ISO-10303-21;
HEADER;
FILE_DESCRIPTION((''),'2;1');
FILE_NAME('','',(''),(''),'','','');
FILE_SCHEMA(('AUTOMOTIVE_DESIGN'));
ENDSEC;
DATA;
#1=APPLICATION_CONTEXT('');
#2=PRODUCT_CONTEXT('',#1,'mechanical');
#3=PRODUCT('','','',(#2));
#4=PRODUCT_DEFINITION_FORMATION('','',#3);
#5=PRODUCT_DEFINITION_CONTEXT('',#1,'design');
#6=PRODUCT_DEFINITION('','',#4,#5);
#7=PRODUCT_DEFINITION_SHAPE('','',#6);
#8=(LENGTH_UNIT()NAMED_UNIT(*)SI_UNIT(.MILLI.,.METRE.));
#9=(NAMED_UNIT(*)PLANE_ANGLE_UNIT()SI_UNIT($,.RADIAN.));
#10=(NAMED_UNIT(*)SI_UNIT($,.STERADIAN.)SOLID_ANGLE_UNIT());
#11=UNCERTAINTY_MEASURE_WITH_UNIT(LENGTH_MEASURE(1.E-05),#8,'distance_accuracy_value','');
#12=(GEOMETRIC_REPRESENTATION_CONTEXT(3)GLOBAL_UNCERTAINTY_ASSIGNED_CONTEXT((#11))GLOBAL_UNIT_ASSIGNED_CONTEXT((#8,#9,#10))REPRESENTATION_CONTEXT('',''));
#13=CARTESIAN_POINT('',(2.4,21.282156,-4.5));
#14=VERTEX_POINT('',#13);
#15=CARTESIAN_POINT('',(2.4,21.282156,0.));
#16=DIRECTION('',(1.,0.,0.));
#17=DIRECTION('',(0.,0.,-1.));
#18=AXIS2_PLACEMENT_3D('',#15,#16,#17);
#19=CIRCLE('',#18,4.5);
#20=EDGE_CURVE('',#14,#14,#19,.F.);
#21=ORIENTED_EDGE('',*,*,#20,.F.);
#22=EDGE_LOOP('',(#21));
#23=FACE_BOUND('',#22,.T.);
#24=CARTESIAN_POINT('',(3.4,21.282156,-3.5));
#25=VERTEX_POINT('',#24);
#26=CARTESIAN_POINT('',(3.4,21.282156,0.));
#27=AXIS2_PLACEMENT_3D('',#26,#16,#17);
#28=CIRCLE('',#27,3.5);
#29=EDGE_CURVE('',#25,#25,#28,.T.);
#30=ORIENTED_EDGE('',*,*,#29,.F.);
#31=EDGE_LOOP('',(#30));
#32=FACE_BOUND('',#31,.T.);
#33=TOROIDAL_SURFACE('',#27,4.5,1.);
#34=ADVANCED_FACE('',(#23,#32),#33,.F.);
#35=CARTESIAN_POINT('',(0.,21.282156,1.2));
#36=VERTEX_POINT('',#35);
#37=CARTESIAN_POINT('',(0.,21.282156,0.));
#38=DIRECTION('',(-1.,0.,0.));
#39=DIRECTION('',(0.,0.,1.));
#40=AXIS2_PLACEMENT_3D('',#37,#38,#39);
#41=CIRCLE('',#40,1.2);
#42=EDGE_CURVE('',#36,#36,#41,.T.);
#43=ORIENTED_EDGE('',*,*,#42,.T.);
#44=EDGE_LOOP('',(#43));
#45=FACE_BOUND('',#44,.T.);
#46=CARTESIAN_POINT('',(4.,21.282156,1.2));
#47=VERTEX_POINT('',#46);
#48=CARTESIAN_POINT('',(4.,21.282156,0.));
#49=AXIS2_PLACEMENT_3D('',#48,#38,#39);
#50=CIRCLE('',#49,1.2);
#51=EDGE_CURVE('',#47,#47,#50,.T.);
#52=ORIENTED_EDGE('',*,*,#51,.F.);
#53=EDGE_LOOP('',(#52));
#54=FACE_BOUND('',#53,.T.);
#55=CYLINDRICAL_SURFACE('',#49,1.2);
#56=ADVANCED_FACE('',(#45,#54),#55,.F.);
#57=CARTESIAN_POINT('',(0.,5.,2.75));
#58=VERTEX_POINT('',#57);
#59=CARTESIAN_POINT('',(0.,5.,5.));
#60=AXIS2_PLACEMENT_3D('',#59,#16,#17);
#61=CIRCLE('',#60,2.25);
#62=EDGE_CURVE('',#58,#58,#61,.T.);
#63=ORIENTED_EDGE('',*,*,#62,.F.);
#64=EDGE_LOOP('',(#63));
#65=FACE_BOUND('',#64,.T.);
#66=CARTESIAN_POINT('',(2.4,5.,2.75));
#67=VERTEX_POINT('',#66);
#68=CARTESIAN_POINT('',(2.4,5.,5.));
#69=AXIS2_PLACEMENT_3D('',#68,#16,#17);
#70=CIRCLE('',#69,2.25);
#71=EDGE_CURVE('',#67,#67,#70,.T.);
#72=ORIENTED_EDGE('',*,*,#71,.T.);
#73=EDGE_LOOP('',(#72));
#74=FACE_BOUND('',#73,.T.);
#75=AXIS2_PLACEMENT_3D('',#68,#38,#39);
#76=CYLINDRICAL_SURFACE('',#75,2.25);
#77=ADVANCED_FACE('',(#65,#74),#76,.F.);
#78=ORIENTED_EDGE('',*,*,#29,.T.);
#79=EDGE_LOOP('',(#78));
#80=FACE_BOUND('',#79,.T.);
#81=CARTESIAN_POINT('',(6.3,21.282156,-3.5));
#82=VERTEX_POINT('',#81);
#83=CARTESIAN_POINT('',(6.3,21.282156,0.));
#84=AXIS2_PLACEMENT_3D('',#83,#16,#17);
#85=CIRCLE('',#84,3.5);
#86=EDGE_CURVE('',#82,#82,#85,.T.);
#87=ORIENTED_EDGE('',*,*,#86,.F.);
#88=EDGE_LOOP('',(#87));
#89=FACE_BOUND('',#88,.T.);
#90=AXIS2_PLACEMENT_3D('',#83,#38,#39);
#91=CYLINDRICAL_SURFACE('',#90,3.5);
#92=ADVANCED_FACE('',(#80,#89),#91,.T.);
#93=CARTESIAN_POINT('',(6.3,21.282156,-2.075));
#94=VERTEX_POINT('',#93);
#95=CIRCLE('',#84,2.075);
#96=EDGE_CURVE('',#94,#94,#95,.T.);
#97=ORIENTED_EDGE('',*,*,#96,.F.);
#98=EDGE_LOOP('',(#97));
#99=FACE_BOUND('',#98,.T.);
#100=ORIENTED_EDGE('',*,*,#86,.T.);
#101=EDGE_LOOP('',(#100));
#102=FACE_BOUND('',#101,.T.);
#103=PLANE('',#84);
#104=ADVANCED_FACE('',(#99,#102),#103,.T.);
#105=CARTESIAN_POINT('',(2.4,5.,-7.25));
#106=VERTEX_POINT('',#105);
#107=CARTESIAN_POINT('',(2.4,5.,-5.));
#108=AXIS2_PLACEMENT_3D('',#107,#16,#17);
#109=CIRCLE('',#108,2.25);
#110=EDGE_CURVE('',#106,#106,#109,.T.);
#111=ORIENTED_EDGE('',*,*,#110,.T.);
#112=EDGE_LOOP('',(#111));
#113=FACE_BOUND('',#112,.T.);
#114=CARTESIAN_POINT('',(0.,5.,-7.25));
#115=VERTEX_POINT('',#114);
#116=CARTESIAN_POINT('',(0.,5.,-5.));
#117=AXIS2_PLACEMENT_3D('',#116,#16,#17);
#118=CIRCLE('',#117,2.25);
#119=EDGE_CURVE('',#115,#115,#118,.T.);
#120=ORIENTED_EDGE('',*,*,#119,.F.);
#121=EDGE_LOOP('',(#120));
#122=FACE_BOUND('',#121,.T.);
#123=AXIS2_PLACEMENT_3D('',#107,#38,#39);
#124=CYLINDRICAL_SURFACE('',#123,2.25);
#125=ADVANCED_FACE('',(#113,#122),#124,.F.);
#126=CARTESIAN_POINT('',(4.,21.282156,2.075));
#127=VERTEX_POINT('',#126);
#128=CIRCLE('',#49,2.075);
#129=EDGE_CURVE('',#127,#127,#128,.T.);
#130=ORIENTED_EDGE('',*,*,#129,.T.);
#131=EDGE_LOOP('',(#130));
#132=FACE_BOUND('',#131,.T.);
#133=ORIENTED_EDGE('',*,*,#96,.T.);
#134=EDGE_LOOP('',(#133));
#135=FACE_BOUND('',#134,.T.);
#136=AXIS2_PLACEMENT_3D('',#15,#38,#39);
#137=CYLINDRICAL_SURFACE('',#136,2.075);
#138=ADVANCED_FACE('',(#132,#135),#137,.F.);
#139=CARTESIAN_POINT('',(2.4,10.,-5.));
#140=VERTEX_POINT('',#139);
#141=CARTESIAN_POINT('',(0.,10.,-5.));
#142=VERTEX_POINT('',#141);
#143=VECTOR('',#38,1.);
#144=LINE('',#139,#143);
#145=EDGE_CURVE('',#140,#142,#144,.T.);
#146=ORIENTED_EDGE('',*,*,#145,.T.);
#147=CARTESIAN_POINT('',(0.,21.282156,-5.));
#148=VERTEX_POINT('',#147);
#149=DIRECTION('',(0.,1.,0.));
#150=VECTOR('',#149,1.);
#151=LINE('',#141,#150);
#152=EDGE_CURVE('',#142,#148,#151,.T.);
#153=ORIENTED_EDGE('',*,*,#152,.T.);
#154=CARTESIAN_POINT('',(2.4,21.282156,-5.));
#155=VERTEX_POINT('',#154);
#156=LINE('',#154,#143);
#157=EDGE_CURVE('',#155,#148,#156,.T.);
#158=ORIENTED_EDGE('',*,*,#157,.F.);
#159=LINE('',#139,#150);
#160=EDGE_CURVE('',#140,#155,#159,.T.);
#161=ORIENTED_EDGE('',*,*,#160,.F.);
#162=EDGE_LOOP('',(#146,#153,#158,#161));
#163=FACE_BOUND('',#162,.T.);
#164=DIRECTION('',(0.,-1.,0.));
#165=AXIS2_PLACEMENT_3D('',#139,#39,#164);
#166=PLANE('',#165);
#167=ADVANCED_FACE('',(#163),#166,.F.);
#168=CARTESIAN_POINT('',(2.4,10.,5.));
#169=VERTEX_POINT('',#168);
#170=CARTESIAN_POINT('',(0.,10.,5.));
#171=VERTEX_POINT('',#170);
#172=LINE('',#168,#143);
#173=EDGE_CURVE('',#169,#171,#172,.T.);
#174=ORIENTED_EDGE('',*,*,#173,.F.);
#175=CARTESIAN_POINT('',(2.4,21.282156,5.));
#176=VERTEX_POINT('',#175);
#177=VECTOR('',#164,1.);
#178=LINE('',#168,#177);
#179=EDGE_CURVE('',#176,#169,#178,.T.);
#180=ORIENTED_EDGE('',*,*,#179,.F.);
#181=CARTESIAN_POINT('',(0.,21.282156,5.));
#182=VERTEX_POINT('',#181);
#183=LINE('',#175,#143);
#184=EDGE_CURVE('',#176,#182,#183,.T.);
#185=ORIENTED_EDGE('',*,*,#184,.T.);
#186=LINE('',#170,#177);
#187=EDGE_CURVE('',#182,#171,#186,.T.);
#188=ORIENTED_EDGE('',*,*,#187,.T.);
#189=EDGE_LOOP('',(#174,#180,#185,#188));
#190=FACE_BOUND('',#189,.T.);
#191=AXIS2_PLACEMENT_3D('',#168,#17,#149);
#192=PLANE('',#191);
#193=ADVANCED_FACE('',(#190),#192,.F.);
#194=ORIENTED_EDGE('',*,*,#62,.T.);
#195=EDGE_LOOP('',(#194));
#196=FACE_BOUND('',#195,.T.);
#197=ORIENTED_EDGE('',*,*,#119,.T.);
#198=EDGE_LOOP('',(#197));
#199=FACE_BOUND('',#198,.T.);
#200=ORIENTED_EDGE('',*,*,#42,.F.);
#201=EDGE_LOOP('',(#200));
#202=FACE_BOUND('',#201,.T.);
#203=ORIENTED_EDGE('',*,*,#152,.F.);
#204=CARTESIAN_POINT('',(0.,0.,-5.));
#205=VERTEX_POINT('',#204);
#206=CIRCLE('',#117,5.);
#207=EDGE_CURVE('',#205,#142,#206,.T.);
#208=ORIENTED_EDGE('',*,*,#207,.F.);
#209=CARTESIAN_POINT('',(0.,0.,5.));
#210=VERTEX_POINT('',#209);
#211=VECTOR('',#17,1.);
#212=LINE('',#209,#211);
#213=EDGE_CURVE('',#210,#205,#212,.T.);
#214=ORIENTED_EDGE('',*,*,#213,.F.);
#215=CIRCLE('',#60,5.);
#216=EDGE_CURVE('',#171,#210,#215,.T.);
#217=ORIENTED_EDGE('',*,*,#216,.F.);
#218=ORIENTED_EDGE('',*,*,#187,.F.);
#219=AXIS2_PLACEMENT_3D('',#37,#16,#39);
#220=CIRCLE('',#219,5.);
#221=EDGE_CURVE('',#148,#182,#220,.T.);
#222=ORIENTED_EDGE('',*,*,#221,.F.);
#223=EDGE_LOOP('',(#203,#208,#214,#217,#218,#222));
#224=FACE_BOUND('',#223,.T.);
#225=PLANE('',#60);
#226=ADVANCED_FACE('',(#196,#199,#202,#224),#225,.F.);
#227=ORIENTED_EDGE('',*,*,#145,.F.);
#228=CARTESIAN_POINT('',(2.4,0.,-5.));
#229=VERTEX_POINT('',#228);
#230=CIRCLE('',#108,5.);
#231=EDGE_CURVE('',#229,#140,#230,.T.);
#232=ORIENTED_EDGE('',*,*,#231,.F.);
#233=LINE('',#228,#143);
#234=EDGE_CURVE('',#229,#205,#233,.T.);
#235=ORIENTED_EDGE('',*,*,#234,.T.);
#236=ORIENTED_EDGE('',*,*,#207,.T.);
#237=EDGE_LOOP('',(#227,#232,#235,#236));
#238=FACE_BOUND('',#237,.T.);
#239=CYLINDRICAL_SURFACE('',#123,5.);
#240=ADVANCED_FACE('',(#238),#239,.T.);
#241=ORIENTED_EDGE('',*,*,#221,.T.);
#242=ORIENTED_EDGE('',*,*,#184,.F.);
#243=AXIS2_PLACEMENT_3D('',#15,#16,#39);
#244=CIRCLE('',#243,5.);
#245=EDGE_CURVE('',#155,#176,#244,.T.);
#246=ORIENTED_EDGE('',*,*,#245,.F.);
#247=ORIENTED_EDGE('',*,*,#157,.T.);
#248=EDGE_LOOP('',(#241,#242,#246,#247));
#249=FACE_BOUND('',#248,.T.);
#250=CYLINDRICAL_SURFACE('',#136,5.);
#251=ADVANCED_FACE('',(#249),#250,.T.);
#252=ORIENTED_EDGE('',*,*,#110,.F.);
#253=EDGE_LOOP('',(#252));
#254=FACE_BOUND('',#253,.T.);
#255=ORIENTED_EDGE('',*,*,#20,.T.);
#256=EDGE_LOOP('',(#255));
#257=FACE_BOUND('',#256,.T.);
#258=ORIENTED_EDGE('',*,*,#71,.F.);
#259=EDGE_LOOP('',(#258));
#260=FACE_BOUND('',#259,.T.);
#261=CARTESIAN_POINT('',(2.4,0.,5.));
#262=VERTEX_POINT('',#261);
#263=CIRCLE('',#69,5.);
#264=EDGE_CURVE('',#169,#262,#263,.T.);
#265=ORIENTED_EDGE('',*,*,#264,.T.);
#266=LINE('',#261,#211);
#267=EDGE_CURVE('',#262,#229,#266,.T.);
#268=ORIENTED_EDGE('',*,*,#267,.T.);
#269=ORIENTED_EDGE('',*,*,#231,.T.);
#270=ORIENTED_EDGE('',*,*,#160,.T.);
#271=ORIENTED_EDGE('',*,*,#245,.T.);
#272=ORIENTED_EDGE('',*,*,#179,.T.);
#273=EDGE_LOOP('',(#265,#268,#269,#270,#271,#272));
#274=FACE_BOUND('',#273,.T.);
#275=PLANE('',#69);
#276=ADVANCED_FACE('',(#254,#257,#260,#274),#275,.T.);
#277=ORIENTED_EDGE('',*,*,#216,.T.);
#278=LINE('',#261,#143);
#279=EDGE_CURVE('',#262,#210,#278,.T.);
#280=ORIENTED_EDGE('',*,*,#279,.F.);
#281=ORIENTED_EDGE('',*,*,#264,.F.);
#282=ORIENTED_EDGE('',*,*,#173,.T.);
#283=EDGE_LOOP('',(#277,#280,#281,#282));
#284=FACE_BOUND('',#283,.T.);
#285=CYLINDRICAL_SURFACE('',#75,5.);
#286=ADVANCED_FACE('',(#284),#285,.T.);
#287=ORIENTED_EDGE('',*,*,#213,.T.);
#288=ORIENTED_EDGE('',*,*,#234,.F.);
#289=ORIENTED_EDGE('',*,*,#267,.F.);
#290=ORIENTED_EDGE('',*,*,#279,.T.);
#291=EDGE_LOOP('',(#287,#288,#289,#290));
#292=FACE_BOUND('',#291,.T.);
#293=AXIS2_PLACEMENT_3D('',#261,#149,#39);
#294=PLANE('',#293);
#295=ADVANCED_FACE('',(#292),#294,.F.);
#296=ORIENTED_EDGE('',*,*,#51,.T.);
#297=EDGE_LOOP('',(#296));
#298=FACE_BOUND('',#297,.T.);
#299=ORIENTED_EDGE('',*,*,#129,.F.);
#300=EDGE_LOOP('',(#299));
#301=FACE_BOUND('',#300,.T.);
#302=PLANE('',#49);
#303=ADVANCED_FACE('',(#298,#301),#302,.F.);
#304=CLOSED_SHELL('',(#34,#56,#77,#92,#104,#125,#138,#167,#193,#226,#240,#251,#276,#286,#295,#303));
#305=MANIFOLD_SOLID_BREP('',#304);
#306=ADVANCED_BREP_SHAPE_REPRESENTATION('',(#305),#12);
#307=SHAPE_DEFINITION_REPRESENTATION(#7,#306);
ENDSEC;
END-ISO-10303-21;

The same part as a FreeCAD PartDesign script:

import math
import FreeCAD as App
import Part
import Sketcher

V = App.Vector
Q = App.Units.Quantity


def edges_at(feature, points):
    """Names of the edges that pass closest to the given points."""
    edges = feature.Shape.Edges
    near = lambda p: min(range(len(edges)), key=lambda i: edges[i].distToShape(Part.Vertex(*p))[0])
    return sorted({f"Edge{near(p) + 1}" for p in points})

doc = App.newDocument("Part")
body = doc.addObject("PartDesign::Body", "Body")

sketch1 = body.newObject("Sketcher::SketchObject", "Sketch")
sketch1.AttachmentSupport = (doc.getObject("YZ_Plane"), [""])
sketch1.MapMode = "FlatFace"
sketch1.addGeometry([
    Part.LineSegment(V(0, 5, 0), V(0, -5, 0)),
    Part.ArcOfCircle(Part.Circle(V(5, -5, 0), V(0, 0, 1), 5), math.radians(180), math.radians(360)),
    Part.LineSegment(V(10, -5, 0), V(21.3, -5, 0)),
    Part.ArcOfCircle(Part.Circle(V(21.3, 0, 0), V(0, 0, 1), 5), math.radians(-90), math.radians(90)),
    Part.LineSegment(V(21.3, 5, 0), V(10, 5, 0)),
    Part.ArcOfCircle(Part.Circle(V(5, 5, 0), V(0, 0, 1), 5), math.radians(0), math.radians(180)),
    Part.Circle(V(5, 5, 0), V(0, 0, 1), 2.2),
    Part.Circle(V(5, -5, 0), V(0, 0, 1), 2.2),
    Part.Circle(V(21.3, 0, 0), V(0, 0, 1), 2.1),
], False)
sketch1.addConstraint([
    Sketcher.Constraint("Tangent", 0, 2, 1, 1),
    Sketcher.Constraint("Coincident", 1, 2, 2, 1),
    Sketcher.Constraint("Tangent", 2, 2, 3, 1),
    Sketcher.Constraint("Tangent", 3, 2, 4, 1),
    Sketcher.Constraint("Coincident", 4, 2, 5, 1),
    Sketcher.Constraint("Tangent", 5, 2, 0, 1),
    Sketcher.Constraint("Vertical", 0),
    Sketcher.Constraint("Horizontal", 2),
    Sketcher.Constraint("Horizontal", 4),
    Sketcher.Constraint("Coincident", 6, 3, 5, 3),
    Sketcher.Constraint("Coincident", 7, 3, 1, 3),
    Sketcher.Constraint("Coincident", 8, 3, 3, 3),
    Sketcher.Constraint("Equal", 1, 3),
    Sketcher.Constraint("Equal", 3, 5),
    Sketcher.Constraint("Equal", 6, 7),
    Sketcher.Constraint("Symmetric", 0, 2, 5, 2, -1, 1),
    Sketcher.Constraint("PointOnObject", 3, 3, -1),
    Sketcher.Constraint("Horizontal", 0, 2, 1, 2),
    Sketcher.Constraint("Radius", 1, Q("5 mm")),
    Sketcher.Constraint("Diameter", 6, Q("4.5 mm")),
    Sketcher.Constraint("Diameter", 8, Q("4.15 mm")),
    Sketcher.Constraint("DistanceX", 2, 1, 2, 2, Q("11.282156 mm")),
])
pad1 = body.newObject("PartDesign::Pad", "Pad")
pad1.Profile = sketch1
pad1.Length = 2.4

sketch2 = body.newObject("Sketcher::SketchObject", "Sketch001")
sketch2.AttachmentSupport = (doc.getObject("YZ_Plane"), [""])
sketch2.MapMode = "FlatFace"
sketch2.AttachmentOffset = App.Placement(V(0, 0, 2.4), App.Rotation())
sketch2.addGeometry([
    Part.Circle(V(21.3, 0, 0), V(0, 0, 1), 3.5),
    Part.Circle(V(21.3, 0, 0), V(0, 0, 1), 2.1),
], False)
sketch2.addConstraint([
    Sketcher.Constraint("Coincident", 1, 3, 0, 3),
    Sketcher.Constraint("PointOnObject", 0, 3, -1),
    Sketcher.Constraint("Diameter", 0, Q("7 mm")),
    Sketcher.Constraint("Diameter", 1, Q("4.15 mm")),
    Sketcher.Constraint("DistanceX", -1, 1, 0, 3, Q("21.282156 mm")),
])
pad2 = body.newObject("PartDesign::Pad", "Pad001")
pad2.Profile = sketch2
pad2.Length = 3.9
doc.recompute()

fillet = body.newObject("PartDesign::Fillet", "Fillet")
fillet.Base = (pad2, edges_at(pad2, [(2.4, 21.282, 3.5)]))
fillet.Radius = 1

sketch3 = body.newObject("Sketcher::SketchObject", "Sketch002")
sketch3.AttachmentSupport = (doc.getObject("YZ_Plane"), [""])
sketch3.MapMode = "FlatFace"
sketch3.addGeometry([
    Part.Circle(V(21.3, 0, 0), V(0, 0, 1), 2.1),
    Part.Circle(V(21.3, 0, 0), V(0, 0, 1), 1.2),
], False)
sketch3.addConstraint([
    Sketcher.Constraint("Coincident", 1, 3, 0, 3),
    Sketcher.Constraint("PointOnObject", 0, 3, -1),
    Sketcher.Constraint("Diameter", 1, Q("2.4 mm")),
    Sketcher.Constraint("Diameter", 0, Q("4.15 mm")),
    Sketcher.Constraint("DistanceX", -1, 1, 0, 3, Q("21.282156 mm")),
])
pad3 = body.newObject("PartDesign::Pad", "Pad002")
pad3.Profile = sketch3
pad3.Length = 4

doc.recompute()
